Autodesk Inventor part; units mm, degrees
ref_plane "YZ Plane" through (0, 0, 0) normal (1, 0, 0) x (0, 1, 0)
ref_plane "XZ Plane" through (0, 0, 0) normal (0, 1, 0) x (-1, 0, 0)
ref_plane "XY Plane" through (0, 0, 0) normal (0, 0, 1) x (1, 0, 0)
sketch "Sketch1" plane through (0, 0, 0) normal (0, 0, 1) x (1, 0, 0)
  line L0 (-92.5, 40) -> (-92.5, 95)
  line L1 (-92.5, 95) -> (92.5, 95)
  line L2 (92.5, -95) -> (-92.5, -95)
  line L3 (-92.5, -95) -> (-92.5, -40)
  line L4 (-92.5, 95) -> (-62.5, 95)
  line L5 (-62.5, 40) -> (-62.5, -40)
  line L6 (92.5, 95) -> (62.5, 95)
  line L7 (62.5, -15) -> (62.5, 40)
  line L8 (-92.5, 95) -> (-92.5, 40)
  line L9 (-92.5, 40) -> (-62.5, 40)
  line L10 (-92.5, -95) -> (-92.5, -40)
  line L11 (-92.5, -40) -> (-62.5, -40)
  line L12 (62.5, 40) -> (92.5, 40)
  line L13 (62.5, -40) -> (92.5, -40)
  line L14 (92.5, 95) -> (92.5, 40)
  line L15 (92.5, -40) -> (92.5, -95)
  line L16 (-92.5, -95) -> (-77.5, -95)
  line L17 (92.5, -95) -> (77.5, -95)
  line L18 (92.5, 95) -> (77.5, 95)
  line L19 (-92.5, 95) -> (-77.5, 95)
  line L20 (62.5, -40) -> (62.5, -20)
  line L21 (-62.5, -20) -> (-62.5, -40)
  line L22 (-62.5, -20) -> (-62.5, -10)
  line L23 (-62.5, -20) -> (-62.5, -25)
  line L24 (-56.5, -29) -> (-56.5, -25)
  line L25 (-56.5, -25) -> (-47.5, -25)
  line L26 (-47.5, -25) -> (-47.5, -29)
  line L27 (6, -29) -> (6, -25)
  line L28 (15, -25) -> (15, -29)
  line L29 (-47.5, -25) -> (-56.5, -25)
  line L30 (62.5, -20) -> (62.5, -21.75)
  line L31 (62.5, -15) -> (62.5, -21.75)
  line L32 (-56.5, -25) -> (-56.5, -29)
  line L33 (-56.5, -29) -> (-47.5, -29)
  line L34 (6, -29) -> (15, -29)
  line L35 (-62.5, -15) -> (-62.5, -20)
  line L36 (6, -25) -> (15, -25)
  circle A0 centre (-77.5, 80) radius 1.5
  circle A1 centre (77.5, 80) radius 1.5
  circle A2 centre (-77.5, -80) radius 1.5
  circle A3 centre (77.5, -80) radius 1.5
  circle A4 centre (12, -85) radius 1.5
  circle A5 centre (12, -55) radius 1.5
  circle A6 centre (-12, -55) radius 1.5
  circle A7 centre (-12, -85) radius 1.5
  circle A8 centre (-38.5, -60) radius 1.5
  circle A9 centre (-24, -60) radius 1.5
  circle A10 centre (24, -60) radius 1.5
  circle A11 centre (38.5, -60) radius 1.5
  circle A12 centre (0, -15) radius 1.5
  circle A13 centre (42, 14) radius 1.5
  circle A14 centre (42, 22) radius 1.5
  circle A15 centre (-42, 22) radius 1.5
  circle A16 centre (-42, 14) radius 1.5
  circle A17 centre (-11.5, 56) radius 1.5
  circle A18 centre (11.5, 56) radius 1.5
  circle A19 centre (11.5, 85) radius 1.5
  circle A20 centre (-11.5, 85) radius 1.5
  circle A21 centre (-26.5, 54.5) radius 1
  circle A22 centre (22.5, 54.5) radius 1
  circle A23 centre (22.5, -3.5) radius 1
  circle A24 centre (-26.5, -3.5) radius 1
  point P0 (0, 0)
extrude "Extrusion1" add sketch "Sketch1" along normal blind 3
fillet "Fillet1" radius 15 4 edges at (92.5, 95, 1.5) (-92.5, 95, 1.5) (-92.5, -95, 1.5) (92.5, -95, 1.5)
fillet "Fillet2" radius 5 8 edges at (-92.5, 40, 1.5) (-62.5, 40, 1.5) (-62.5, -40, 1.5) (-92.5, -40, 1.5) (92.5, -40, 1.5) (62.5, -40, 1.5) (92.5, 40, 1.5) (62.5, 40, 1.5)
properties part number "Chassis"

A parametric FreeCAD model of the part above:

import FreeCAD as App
import Part
import Sketcher

V = App.Vector
Q = App.Units.Quantity


def edges_at(feature, points):
    """Names of the edges that pass closest to the given points."""
    edges = feature.Shape.Edges
    near = lambda p: min(range(len(edges)), key=lambda i: edges[i].distToShape(Part.Vertex(*p))[0])
    return sorted({f"Edge{near(p) + 1}" for p in points})

doc = App.newDocument("Part")
body = doc.addObject("PartDesign::Body", "Body")

# Sketch on XY plane
sketch1 = body.newObject("Sketcher::SketchObject", "Sketch")
sketch1.AttachmentSupport = (doc.getObject("XY_Plane"), [""])
sketch1.MapMode = "FlatFace"
sketch1.addGeometry([
    Part.LineSegment(V(-92.5, 95, 0), V(-92.5, 40, 0)),  # 0
    Part.LineSegment(V(-92.5, 40, 0), V(-62.5, 40, 0)),  # 1
    Part.LineSegment(V(-62.5, 40, 0), V(-62.5, -40, 0)),  # 2
    Part.LineSegment(V(-62.5, -40, 0), V(-92.5, -40, 0)),  # 3
    Part.LineSegment(V(-92.5, -40, 0), V(-92.5, -95, 0)),  # 4
    Part.LineSegment(V(-92.5, -95, 0), V(92.5, -95, 0)),  # 5
    Part.LineSegment(V(92.5, -95, 0), V(92.5, -40, 0)),  # 6
    Part.LineSegment(V(92.5, -40, 0), V(62.5, -40, 0)),  # 7
    Part.LineSegment(V(62.5, -40, 0), V(62.5, 40, 0)),  # 8
    Part.LineSegment(V(62.5, 40, 0), V(92.5, 40, 0)),  # 9
    Part.LineSegment(V(92.5, 40, 0), V(92.5, 95, 0)),  # 10
    Part.LineSegment(V(92.5, 95, 0), V(-92.5, 95, 0)),  # 11
    Part.Circle(V(-77.5, -80, 0), V(0, 0, 1), 1.5),  # 12
    Part.Circle(V(-12, -85, 0), V(0, 0, 1), 1.5),  # 13
    Part.Circle(V(-38.5, -60, 0), V(0, 0, 1), 1.5),  # 14
    Part.Circle(V(-24, -60, 0), V(0, 0, 1), 1.5),  # 15
    Part.Circle(V(-12, -55, 0), V(0, 0, 1), 1.5),  # 16
    Part.LineSegment(V(-47.5, -29, 0), V(-56.5, -29, 0)),  # 17
    Part.LineSegment(V(-56.5, -29, 0), V(-56.5, -25, 0)),  # 18
    Part.LineSegment(V(-56.5, -25, 0), V(-47.5, -25, 0)),  # 19
    Part.LineSegment(V(-47.5, -25, 0), V(-47.5, -29, 0)),  # 20
    Part.Circle(V(-26.5, -3.5, 0), V(0, 0, 1), 1),  # 21
    Part.Circle(V(12, -85, 0), V(0, 0, 1), 1.5),  # 22
    Part.Circle(V(12, -55, 0), V(0, 0, 1), 1.5),  # 23
    Part.Circle(V(24, -60, 0), V(0, 0, 1), 1.5),  # 24
    Part.Circle(V(38.5, -60, 0), V(0, 0, 1), 1.5),  # 25
    Part.Circle(V(77.5, -80, 0), V(0, 0, 1), 1.5),  # 26
    Part.LineSegment(V(15, -29, 0), V(6, -29, 0)),  # 27
    Part.LineSegment(V(6, -29, 0), V(6, -25, 0)),  # 28
    Part.LineSegment(V(6, -25, 0), V(15, -25, 0)),  # 29
    Part.LineSegment(V(15, -25, 0), V(15, -29, 0)),  # 30
    Part.Circle(V(0, -15, 0), V(0, 0, 1), 1.5),  # 31
    Part.Circle(V(22.5, -3.5, 0), V(0, 0, 1), 1),  # 32
    Part.Circle(V(-42, 14, 0), V(0, 0, 1), 1.5),  # 33
    Part.Circle(V(-42, 22, 0), V(0, 0, 1), 1.5),  # 34
    Part.Circle(V(-77.5, 80, 0), V(0, 0, 1), 1.5),  # 35
    Part.Circle(V(-26.5, 54.5, 0), V(0, 0, 1), 1),  # 36
    Part.Circle(V(-11.5, 56, 0), V(0, 0, 1), 1.5),  # 37
    Part.Circle(V(-11.5, 85, 0), V(0, 0, 1), 1.5),  # 38
    Part.Circle(V(42, 14, 0), V(0, 0, 1), 1.5),  # 39
    Part.Circle(V(42, 22, 0), V(0, 0, 1), 1.5),  # 40
    Part.Circle(V(11.5, 56, 0), V(0, 0, 1), 1.5),  # 41
    Part.Circle(V(22.5, 54.5, 0), V(0, 0, 1), 1),  # 42
    Part.Circle(V(11.5, 85, 0), V(0, 0, 1), 1.5),  # 43
    Part.Circle(V(77.5, 80, 0), V(0, 0, 1), 1.5),  # 44
], False)
sketch1.addConstraint([
    Sketcher.Constraint("Coincident", 0, 2, 1, 1),
    Sketcher.Constraint("Coincident", 1, 2, 2, 1),
    Sketcher.Constraint("Coincident", 2, 2, 3, 1),
    Sketcher.Constraint("Coincident", 3, 2, 4, 1),
    Sketcher.Constraint("Coincident", 4, 2, 5, 1),
    Sketcher.Constraint("Coincident", 5, 2, 6, 1),
    Sketcher.Constraint("Coincident", 6, 2, 7, 1),
    Sketcher.Constraint("Coincident", 7, 2, 8, 1),
    Sketcher.Constraint("Coincident", 8, 2, 9, 1),
    Sketcher.Constraint("Coincident", 9, 2, 10, 1),
    Sketcher.Constraint("Coincident", 10, 2, 11, 1),
    Sketcher.Constraint("Coincident", 11, 2, 0, 1),
    Sketcher.Constraint("Coincident", 17, 2, 18, 1),
    Sketcher.Constraint("Coincident", 18, 2, 19, 1),
    Sketcher.Constraint("Coincident", 19, 2, 20, 1),
    Sketcher.Constraint("Coincident", 20, 2, 17, 1),
    Sketcher.Constraint("Coincident", 27, 2, 28, 1),
    Sketcher.Constraint("Coincident", 28, 2, 29, 1),
    Sketcher.Constraint("Coincident", 29, 2, 30, 1),
    Sketcher.Constraint("Coincident", 30, 2, 27, 1),
    Sketcher.Constraint("Vertical", 0),
    Sketcher.Constraint("Horizontal", 1),
    Sketcher.Constraint("Vertical", 2),
    Sketcher.Constraint("Horizontal", 3),
    Sketcher.Constraint("Vertical", 4),
    Sketcher.Constraint("Horizontal", 5),
    Sketcher.Constraint("Vertical", 6),
    Sketcher.Constraint("Horizontal", 7),
    Sketcher.Constraint("Vertical", 8),
    Sketcher.Constraint("Horizontal", 9),
    Sketcher.Constraint("Vertical", 10),
    Sketcher.Constraint("Horizontal", 11),
    Sketcher.Constraint("Horizontal", 17),
    Sketcher.Constraint("Vertical", 18),
    Sketcher.Constraint("Horizontal", 19),
    Sketcher.Constraint("Vertical", 20),
    Sketcher.Constraint("Horizontal", 27),
    Sketcher.Constraint("Vertical", 28),
    Sketcher.Constraint("Horizontal", 29),
    Sketcher.Constraint("Vertical", 30),
    Sketcher.Constraint("Equal", 12, 13),
    Sketcher.Constraint("Equal", 13, 14),
    Sketcher.Constraint("Equal", 14, 15),
    Sketcher.Constraint("Equal", 15, 16),
    Sketcher.Constraint("Equal", 16, 22),
    Sketcher.Constraint("Equal", 22, 23),
    Sketcher.Constraint("Equal", 23, 24),
    Sketcher.Constraint("Equal", 24, 25),
    Sketcher.Constraint("Equal", 25, 26),
    Sketcher.Constraint("Equal", 26, 31),
    Sketcher.Constraint("Equal", 21, 32),
    Sketcher.Constraint("Equal", 31, 33),
    Sketcher.Constraint("Equal", 33, 34),
    Sketcher.Constraint("Equal", 34, 35),
    Sketcher.Constraint("Equal", 32, 36),
    Sketcher.Constraint("Equal", 35, 37),
    Sketcher.Constraint("Equal", 37, 38),
    Sketcher.Constraint("Equal", 38, 39),
    Sketcher.Constraint("Equal", 39, 40),
    Sketcher.Constraint("Equal", 40, 41),
    Sketcher.Constraint("Equal", 36, 42),
    Sketcher.Constraint("Equal", 41, 43),
    Sketcher.Constraint("Equal", 43, 44),
    Sketcher.Constraint("Symmetric", 26, 3, 35, 3, -1, 1),
    Sketcher.Constraint("Symmetric", 12, 3, 44, 3, -1, 1),
    Sketcher.Constraint("Symmetric", 0, 2, 6, 2, -1, 1),
    Sketcher.Constraint("Symmetric", 2, 2, 8, 2, -1, 1),
    Sketcher.Constraint("Symmetric", 4, 2, 10, 2, -1, 1),
    Sketcher.Constraint("Symmetric", 13, 3, 22, 3, -2),
    Sketcher.Constraint("Symmetric", 16, 3, 23, 3, -2),
    Sketcher.Constraint("Symmetric", 15, 3, 24, 3, -2),
    Sketcher.Constraint("Symmetric", 14, 3, 25, 3, -2),
    Sketcher.Constraint("Symmetric", 12, 3, 26, 3, -2),
    Sketcher.Constraint("Symmetric", 33, 3, 39, 3, -2),
    Sketcher.Constraint("Symmetric", 34, 3, 40, 3, -2),
    Sketcher.Constraint("Symmetric", 37, 3, 41, 3, -2),
    Sketcher.Constraint("Symmetric", 38, 3, 43, 3, -2),
    Sketcher.Constraint("Symmetric", 3, 2, 6, 2, -2),
    Sketcher.Constraint("PointOnObject", 31, 3, -2),
    Sketcher.Constraint("Horizontal", 14, 3, 15, 3),
    Sketcher.Constraint("Horizontal", 21, 3, 32, 3),
    Sketcher.Constraint("Horizontal", 36, 3, 42, 3),
    Sketcher.Constraint("Horizontal", 20, 2, 27, 2),
    Sketcher.Constraint("Horizontal", 19, 2, 28, 2),
    Sketcher.Constraint("Vertical", 13, 3, 16, 3),
    Sketcher.Constraint("Vertical", 33, 3, 34, 3),
    Sketcher.Constraint("Vertical", 21, 3, 36, 3),
    Sketcher.Constraint("Vertical", 37, 3, 38, 3),
    Sketcher.Constraint("Vertical", 32, 3, 42, 3),
    Sketcher.Constraint("Equal", 19, 27),
    Sketcher.Constraint("Diameter", 12, Q("3 mm")),
    Sketcher.Constraint("Diameter", 21, Q("2 mm")),
    Sketcher.Constraint("DistanceX", 1, 1, 1, 2, Q("30 mm")),
    Sketcher.Constraint("DistanceX", 5, 1, 5, 2, Q("185 mm")),
    Sketcher.Constraint("DistanceX", 17, 2, 17, 1, Q("9 mm")),
    Sketcher.Constraint("DistanceY", 0, 2, 0, 1, Q("55 mm")),
    Sketcher.Constraint("DistanceY", 2, 2, 2, 1, Q("80 mm")),
    Sketcher.Constraint("DistanceY", 18, 1, 18, 2, Q("4 mm")),
    Sketcher.Constraint("DistanceY", 12, 3, -1, 1, Q("80 mm")),
    Sketcher.Constraint("DistanceX", 13, 3, -1, 1, Q("12 mm")),
    Sketcher.Constraint("DistanceY", 13, 3, -1, 1, Q("85 mm")),
    Sketcher.Constraint("DistanceY", 14, 3, -1, 1, Q("60 mm")),
    Sketcher.Constraint("DistanceX", 15, 3, -1, 1, Q("24 mm")),
    Sketcher.Constraint("DistanceY", 16, 3, -1, 1, Q("55 mm")),
    Sketcher.Constraint("DistanceY", 31, 3, -1, 1, Q("15 mm")),
    Sketcher.Constraint("DistanceX", 33, 3, -1, 1, Q("42 mm")),
    Sketcher.Constraint("DistanceY", -1, 1, 33, 3, Q("14 mm")),
    Sketcher.Constraint("DistanceY", -1, 1, 34, 3, Q("22 mm")),
    Sketcher.Constraint("DistanceY", -1, 1, 37, 3, Q("56 mm")),
    Sketcher.Constraint("DistanceY", -1, 1, 38, 3, Q("85 mm")),
    Sketcher.Constraint("DistanceY", 17, 2, -1, 1, Q("29 mm")),
    Sketcher.Constraint("DistanceX", -1, 1, 27, 2, Q("6 mm")),
    Sketcher.Constraint("DistanceX", 12, 3, 14, 3, Q("39 mm")),
    Sketcher.Constraint("DistanceX", 14, 3, 21, 3, Q("12 mm")),
    Sketcher.Constraint("DistanceX", 21, 3, 32, 3, Q("49 mm")),
    Sketcher.Constraint("DistanceX", 32, 3, 25, 3, Q("16 mm")),
    Sketcher.Constraint("DistanceY", 21, 3, 36, 3, Q("58 mm")),
    Sketcher.Constraint("DistanceX", 36, 3, 37, 3, Q("15 mm")),
    Sketcher.Constraint("DistanceX", 2, 2, 17, 2, Q("6 mm")),
    Sketcher.Constraint("DistanceY", 21, 3, -1, 1, Q("3.5 mm")),
])
pad1 = body.newObject("PartDesign::Pad", "Pad")
pad1.Profile = sketch1
pad1.Length = 3
doc.recompute()

fillet = body.newObject("PartDesign::Fillet", "Fillet")
fillet.Base = (pad1, edges_at(pad1, [
    (92.5, 95, 1.5),
    (-92.5, 95, 1.5),
    (-92.5, -95, 1.5),
    (92.5, -95, 1.5),
]))
fillet.Radius = 15
doc.recompute()

fillet2 = body.newObject("PartDesign::Fillet", "Fillet001")
fillet2.Base = (fillet, edges_at(fillet, [
    (-92.5, 40, 1.5),
    (-62.5, 40, 1.5),
    (-62.5, -40, 1.5),
    (-92.5, -40, 1.5),
    (92.5, -40, 1.5),
    (62.5, -40, 1.5),
    (92.5, 40, 1.5),
    (62.5, 40, 1.5),
]))
fillet2.Radius = 5

doc.recompute()
